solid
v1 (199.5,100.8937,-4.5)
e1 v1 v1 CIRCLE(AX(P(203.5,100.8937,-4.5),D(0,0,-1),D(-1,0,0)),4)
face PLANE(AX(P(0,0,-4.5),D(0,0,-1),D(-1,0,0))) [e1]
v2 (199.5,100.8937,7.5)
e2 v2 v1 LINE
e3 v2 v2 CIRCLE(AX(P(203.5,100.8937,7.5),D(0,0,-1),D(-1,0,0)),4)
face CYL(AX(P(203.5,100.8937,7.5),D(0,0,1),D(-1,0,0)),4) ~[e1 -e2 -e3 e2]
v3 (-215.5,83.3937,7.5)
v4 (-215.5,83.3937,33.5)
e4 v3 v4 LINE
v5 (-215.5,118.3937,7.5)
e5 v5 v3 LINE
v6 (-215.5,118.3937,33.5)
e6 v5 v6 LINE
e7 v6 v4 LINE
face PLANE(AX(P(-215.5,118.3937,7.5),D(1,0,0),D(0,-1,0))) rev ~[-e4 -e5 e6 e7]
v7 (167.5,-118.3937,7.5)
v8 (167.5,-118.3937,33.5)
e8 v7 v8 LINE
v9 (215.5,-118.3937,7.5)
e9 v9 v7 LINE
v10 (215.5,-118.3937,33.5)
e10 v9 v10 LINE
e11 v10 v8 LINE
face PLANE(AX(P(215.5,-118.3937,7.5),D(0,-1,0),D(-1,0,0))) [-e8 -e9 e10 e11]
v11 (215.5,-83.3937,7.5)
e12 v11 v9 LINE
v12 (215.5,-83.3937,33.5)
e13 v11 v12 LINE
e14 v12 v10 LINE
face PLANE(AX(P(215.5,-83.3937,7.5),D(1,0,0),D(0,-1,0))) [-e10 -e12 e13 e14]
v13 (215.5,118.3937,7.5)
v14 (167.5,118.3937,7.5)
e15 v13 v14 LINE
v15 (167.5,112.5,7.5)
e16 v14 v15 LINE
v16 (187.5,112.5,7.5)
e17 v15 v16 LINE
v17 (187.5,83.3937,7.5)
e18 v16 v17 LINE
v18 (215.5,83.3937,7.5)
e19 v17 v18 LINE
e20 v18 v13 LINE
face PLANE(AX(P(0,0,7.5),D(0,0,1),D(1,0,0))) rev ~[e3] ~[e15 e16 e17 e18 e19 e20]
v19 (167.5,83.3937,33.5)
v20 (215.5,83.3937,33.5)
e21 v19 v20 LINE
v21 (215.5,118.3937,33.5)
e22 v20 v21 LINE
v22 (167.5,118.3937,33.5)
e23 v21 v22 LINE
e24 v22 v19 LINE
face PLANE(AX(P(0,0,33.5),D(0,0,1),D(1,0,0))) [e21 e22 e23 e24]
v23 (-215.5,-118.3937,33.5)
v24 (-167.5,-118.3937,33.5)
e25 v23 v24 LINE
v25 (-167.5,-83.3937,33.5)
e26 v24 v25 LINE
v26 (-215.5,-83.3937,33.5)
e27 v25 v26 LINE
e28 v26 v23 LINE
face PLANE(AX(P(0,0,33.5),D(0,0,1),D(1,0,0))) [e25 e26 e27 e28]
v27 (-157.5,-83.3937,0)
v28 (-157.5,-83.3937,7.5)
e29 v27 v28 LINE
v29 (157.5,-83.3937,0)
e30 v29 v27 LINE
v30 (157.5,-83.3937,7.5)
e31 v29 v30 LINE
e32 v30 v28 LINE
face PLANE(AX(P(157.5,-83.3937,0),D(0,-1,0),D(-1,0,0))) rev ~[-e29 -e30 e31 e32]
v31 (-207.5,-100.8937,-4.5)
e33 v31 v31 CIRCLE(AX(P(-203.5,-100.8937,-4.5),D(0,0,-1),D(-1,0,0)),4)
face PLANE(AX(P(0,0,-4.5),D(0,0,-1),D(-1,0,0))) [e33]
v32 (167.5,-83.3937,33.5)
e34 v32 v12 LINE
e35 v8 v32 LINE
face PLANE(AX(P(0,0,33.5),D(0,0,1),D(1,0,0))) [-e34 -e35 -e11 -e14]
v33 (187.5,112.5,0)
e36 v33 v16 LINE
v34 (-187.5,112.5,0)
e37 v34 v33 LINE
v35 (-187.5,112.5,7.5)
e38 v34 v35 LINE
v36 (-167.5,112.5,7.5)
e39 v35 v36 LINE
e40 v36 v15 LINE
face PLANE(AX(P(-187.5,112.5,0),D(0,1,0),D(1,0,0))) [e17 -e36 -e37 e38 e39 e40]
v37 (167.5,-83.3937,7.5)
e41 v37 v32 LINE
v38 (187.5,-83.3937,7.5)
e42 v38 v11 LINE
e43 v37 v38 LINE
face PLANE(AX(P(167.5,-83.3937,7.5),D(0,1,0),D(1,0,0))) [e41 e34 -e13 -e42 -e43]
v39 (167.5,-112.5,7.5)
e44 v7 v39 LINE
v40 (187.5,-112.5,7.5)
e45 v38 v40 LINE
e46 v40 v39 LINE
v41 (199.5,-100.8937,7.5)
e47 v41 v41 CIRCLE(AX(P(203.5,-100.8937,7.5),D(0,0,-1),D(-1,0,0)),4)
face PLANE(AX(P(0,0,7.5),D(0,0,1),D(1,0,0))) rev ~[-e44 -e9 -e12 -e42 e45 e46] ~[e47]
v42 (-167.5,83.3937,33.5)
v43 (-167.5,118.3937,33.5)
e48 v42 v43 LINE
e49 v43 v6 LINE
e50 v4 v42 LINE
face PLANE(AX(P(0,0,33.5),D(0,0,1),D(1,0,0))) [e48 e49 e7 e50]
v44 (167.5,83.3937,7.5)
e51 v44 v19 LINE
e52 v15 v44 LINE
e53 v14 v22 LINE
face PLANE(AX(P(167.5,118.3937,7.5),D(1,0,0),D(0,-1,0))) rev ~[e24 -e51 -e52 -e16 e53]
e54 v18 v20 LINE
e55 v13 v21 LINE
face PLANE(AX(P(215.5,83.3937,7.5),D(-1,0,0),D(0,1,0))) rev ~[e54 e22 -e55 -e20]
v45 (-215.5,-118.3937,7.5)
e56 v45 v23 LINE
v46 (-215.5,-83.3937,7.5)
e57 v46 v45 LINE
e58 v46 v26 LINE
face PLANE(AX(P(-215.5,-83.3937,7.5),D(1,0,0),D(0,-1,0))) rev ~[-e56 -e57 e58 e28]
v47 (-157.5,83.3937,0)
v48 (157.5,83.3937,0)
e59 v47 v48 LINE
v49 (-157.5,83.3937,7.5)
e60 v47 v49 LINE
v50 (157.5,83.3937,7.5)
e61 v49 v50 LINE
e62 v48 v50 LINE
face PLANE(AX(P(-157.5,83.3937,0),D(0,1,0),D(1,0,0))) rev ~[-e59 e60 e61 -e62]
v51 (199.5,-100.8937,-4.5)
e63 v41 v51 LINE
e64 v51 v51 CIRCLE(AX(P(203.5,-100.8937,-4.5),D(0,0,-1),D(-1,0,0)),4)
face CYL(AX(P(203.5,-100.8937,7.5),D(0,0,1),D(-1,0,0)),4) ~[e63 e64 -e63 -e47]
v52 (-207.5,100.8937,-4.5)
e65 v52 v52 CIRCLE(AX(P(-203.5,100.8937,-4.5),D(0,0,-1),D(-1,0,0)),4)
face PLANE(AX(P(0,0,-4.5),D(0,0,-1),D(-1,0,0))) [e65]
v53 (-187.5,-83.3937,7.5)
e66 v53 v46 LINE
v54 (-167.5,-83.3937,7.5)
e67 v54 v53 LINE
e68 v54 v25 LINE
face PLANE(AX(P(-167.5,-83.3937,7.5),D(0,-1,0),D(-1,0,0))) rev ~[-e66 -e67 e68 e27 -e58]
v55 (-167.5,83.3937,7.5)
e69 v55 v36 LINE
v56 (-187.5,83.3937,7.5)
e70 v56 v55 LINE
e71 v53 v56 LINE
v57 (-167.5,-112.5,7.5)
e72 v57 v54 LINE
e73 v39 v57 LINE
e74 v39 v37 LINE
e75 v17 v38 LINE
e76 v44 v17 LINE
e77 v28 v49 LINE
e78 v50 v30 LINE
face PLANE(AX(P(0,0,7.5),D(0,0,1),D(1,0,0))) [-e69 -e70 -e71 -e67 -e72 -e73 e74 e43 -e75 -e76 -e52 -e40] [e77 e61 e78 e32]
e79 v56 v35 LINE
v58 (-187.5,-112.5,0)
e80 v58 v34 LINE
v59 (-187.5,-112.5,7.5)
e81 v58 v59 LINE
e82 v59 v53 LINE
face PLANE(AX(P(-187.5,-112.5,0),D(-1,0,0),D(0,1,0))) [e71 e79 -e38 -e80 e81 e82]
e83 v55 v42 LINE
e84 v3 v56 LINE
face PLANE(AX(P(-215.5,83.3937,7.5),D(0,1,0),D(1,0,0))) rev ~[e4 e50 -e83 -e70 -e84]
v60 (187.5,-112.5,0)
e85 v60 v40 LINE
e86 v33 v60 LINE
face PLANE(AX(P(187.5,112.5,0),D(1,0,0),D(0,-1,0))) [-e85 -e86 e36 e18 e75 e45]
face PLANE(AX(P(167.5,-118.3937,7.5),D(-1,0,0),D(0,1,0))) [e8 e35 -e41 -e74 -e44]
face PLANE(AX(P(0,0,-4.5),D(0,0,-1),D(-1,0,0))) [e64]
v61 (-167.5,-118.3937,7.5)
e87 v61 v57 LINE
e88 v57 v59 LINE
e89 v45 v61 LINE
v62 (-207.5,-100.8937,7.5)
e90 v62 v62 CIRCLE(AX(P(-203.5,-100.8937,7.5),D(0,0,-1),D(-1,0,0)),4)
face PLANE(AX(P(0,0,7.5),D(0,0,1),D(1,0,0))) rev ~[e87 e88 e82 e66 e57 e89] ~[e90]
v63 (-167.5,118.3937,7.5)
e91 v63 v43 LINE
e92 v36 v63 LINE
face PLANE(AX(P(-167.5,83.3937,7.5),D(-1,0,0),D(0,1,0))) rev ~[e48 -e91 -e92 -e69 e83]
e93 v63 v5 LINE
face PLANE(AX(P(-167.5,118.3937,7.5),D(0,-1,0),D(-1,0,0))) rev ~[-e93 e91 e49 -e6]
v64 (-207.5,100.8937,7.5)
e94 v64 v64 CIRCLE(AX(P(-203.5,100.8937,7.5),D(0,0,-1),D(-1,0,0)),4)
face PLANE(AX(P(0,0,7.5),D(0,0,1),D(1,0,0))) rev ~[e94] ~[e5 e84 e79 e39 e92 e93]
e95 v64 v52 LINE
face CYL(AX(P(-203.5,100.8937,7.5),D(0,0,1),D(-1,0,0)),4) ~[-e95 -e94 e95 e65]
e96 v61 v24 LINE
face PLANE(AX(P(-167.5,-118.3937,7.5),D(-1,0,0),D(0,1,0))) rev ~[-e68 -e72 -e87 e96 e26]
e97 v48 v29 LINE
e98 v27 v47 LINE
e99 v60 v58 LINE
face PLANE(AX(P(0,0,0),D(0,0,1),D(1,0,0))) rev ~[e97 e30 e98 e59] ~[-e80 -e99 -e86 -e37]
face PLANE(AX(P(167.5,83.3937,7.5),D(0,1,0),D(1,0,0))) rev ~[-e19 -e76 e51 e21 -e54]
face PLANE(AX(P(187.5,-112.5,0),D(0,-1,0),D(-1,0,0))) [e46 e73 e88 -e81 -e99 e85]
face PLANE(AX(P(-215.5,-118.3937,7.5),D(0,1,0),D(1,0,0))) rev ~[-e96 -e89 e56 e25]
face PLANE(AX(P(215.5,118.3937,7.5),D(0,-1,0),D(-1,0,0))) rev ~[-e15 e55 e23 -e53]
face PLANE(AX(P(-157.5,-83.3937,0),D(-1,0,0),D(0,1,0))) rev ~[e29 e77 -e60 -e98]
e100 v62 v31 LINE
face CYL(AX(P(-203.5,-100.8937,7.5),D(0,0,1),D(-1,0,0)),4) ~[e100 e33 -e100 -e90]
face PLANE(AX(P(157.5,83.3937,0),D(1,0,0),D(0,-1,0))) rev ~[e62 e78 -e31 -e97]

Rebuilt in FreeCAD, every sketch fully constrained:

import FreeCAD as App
import Part
import Sketcher

V = App.Vector
Q = App.Units.Quantity


def add_polygon(sketch, points):
    """Adds a closed chain of lines whose ends are joined by coincident constraints."""
    first, n = sketch.GeometryCount, len(points)
    for a, b in zip(points, points[1:] + points[:1]):
        sketch.addGeometry(Part.LineSegment(App.Vector(*a, 0), App.Vector(*b, 0)), False)
    for i in range(n):
        sketch.addConstraint(Sketcher.Constraint("Coincident", first + i, 2, first + (i + 1) % n, 1))

doc = App.newDocument("Part")
body = doc.addObject("PartDesign::Body", "Body")

# Sketch on XY plane
sketch1 = doc.addObject("Sketcher::SketchObject", "Sketch")
body.addObject(sketch1)
sketch1.AttachmentSupport = (doc.XY_Plane, [""])
sketch1.MapMode = "FlatFace"
add_polygon(sketch1, [(-188, -112), (188, -112), (188, 112), (-188, 112)])  # lines 0-3
add_polygon(sketch1, [(158, 83), (158, -83), (-158, -83), (-158, 83)])  # lines 4-7
sketch1.addConstraint([
    Sketcher.Constraint("Horizontal", 0),
    Sketcher.Constraint("Vertical", 1),
    Sketcher.Constraint("Horizontal", 2),
    Sketcher.Constraint("Vertical", 3),
    Sketcher.Constraint("Vertical", 4),
    Sketcher.Constraint("Horizontal", 5),
    Sketcher.Constraint("Vertical", 6),
    Sketcher.Constraint("Horizontal", 7),
    Sketcher.Constraint("Symmetric", 0, 2, 2, 2, -1, 1),
    Sketcher.Constraint("Symmetric", 4, 2, 6, 2, -1, 1),
    Sketcher.Constraint("DistanceX", 0, 1, 0, 2, Q("375 mm")),
    Sketcher.Constraint("DistanceX", 5, 2, 5, 1, Q("315 mm")),
    Sketcher.Constraint("DistanceY", 1, 1, 1, 2, Q("225 mm")),
    Sketcher.Constraint("DistanceY", 4, 2, 4, 1, Q("166.7874 mm")),
])
pad1 = doc.addObject("PartDesign::Pad", "Pad")
body.addObject(pad1)
pad1.Profile = sketch1
pad1.Length = 7.5

# Sketch on XY plane
sketch2 = doc.addObject("Sketcher::SketchObject", "Sketch001")
body.addObject(sketch2)
sketch2.AttachmentSupport = (doc.XY_Plane, [""])
sketch2.MapMode = "FlatFace"
sketch2.AttachmentOffset = App.Placement(V(0, 0, 7.5), App.Rotation())
add_polygon(sketch2, [(-216, 83), (-168, 83), (-168, 118), (-216, 118)])  # lines 0-3
add_polygon(sketch2, [(168, 118), (168, 83), (216, 83), (216, 118)])  # lines 4-7
add_polygon(sketch2, [(216, -83), (168, -83), (168, -118), (216, -118)])  # lines 8-11
add_polygon(sketch2, [(-168, -118), (-168, -83), (-216, -83), (-216, -118)])  # lines 12-15
sketch2.addConstraint([
    Sketcher.Constraint("Horizontal", 0),
    Sketcher.Constraint("Vertical", 1),
    Sketcher.Constraint("Horizontal", 2),
    Sketcher.Constraint("Vertical", 3),
    Sketcher.Constraint("Vertical", 4),
    Sketcher.Constraint("Horizontal", 5),
    Sketcher.Constraint("Vertical", 6),
    Sketcher.Constraint("Horizontal", 7),
    Sketcher.Constraint("Horizontal", 8),
    Sketcher.Constraint("Vertical", 9),
    Sketcher.Constraint("Horizontal", 10),
    Sketcher.Constraint("Vertical", 11),
    Sketcher.Constraint("Vertical", 12),
    Sketcher.Constraint("Horizontal", 13),
    Sketcher.Constraint("Vertical", 14),
    Sketcher.Constraint("Horizontal", 15),
    Sketcher.Constraint("Symmetric", 0, 2, 8, 2, -1, 1),
    Sketcher.Constraint("Symmetric", 2, 2, 10, 2, -1, 1),
    Sketcher.Constraint("Symmetric", 4, 2, 12, 2, -1, 1),
    Sketcher.Constraint("Symmetric", 6, 2, 14, 2, -1, 1),
    Sketcher.Constraint("Symmetric", 0, 2, 4, 2, -2),
    Sketcher.Constraint("Symmetric", 2, 2, 6, 2, -2),
    Sketcher.Constraint("DistanceX", 0, 1, 0, 2, Q("48 mm")),
    Sketcher.Constraint("DistanceY", 1, 1, 1, 2, Q("35 mm")),
    Sketcher.Constraint("DistanceX", 0, 2, 4, 2, Q("335 mm")),
    Sketcher.Constraint("DistanceY", -1, 1, 0, 2, Q("83.3937 mm")),
])
pad2 = doc.addObject("PartDesign::Pad", "Pad001")
body.addObject(pad2)
pad2.Profile = sketch2
pad2.Length = 26

# Sketch on XY plane
sketch3 = doc.addObject("Sketcher::SketchObject", "Sketch002")
body.addObject(sketch3)
sketch3.AttachmentSupport = (doc.XY_Plane, [""])
sketch3.MapMode = "FlatFace"
sketch3.AttachmentOffset = App.Placement(V(0, 0, 7.5), App.Rotation())
sketch3.addGeometry([
    Part.Circle(V(203.5, 100.9, 0), V(0, 0, 1), 4),
    Part.Circle(V(203.5, -100.9, 0), V(0, 0, 1), 4),
    Part.Circle(V(-203.5, -100.9, 0), V(0, 0, 1), 4),
    Part.Circle(V(-203.5, 100.9, 0), V(0, 0, 1), 4),
], False)
sketch3.addConstraint([
    Sketcher.Constraint("Equal", 0, 1),
    Sketcher.Constraint("Equal", 1, 2),
    Sketcher.Constraint("Equal", 2, 3),
    Sketcher.Constraint("Symmetric", 0, 3, 2, 3, -1, 1),
    Sketcher.Constraint("Symmetric", 1, 3, 3, 3, -1, 1),
    Sketcher.Constraint("Symmetric", 1, 3, 2, 3, -2),
    Sketcher.Constraint("Diameter", 0, Q("8 mm")),
    Sketcher.Constraint("DistanceX", -1, 1, 0, 3, Q("203.5 mm")),
    Sketcher.Constraint("DistanceY", -1, 1, 0, 3, Q("100.8937 mm")),
])
pad3 = doc.addObject("PartDesign::Pad", "Pad002")
body.addObject(pad3)
pad3.Profile = sketch3
pad3.Length = 12
pad3.Reversed = True

doc.recompute()
